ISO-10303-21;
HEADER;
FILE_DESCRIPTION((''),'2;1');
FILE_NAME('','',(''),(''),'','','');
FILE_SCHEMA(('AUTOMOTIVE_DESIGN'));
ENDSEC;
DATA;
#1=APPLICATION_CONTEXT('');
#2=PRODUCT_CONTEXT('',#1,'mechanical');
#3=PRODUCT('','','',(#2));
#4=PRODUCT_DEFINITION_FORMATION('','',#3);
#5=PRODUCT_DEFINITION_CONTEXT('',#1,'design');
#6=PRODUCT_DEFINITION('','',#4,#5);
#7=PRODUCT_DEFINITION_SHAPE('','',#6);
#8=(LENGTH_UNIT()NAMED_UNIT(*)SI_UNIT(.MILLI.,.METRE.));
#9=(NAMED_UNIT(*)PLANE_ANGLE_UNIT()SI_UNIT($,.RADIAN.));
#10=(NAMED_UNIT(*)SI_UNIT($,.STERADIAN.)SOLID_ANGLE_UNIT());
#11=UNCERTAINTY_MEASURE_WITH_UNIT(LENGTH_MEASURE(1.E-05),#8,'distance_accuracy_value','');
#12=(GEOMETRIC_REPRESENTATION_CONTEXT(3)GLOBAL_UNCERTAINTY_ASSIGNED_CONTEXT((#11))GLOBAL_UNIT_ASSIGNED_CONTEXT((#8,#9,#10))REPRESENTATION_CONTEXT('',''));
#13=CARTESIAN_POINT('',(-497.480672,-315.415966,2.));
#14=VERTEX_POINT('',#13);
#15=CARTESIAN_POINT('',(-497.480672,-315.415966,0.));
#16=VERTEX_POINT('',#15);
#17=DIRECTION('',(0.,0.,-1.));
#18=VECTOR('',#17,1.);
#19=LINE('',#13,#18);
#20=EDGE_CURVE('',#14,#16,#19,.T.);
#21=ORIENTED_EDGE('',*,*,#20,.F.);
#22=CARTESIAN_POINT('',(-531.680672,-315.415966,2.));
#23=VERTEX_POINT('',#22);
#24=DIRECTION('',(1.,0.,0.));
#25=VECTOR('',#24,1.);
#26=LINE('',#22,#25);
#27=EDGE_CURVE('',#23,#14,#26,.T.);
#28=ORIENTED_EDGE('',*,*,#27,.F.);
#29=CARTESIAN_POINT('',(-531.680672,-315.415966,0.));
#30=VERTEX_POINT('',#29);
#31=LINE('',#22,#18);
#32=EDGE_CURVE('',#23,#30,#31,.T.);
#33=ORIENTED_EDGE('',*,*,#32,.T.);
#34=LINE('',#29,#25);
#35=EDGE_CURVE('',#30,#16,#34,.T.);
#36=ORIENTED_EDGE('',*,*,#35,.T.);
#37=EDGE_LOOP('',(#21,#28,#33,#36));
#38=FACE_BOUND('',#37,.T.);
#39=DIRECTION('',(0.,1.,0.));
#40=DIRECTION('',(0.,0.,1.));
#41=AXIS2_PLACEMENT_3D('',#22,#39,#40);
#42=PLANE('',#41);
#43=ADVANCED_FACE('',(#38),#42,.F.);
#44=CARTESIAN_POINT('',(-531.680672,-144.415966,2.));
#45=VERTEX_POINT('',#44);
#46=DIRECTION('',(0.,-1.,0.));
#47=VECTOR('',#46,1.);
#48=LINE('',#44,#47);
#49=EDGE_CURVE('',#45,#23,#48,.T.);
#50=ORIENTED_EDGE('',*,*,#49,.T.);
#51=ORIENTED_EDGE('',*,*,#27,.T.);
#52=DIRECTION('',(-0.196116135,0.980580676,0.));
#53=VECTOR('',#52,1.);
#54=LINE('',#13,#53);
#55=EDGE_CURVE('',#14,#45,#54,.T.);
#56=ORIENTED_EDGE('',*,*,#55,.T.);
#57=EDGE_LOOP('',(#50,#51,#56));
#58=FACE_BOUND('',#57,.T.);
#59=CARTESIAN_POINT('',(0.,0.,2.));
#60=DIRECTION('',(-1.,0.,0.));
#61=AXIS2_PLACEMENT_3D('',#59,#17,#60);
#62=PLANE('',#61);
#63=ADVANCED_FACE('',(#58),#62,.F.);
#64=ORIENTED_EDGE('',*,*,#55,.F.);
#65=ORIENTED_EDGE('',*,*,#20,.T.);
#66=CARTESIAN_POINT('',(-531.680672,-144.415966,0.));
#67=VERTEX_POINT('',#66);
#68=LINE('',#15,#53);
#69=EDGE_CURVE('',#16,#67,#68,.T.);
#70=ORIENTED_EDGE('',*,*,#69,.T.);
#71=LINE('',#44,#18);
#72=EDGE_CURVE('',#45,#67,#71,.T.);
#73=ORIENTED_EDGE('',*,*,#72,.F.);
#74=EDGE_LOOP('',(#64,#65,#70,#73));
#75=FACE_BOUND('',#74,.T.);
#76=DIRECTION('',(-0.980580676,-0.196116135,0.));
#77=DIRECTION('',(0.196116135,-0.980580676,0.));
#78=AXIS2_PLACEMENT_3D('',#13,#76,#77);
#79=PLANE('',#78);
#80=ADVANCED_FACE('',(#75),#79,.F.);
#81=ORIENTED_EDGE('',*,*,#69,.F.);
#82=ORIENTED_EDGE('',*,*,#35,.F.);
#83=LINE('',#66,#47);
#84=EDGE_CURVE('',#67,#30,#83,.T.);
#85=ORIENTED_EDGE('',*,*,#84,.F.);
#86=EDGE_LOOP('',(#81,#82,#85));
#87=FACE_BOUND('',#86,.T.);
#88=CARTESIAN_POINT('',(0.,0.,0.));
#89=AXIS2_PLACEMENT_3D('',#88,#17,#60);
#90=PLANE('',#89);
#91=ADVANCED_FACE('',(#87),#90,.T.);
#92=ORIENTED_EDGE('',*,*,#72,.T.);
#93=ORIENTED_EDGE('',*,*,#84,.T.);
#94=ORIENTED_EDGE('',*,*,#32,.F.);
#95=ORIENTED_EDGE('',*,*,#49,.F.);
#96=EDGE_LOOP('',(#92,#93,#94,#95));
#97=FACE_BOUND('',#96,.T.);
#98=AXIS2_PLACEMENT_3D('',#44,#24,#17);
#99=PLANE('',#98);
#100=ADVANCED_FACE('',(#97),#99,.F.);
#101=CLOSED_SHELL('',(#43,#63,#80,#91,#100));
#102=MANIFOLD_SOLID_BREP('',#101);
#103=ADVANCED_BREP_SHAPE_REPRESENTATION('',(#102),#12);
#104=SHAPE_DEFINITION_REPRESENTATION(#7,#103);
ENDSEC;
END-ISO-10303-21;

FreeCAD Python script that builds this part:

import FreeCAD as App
import Part
import Sketcher
from FreeCAD import Vector
Q = App.Units.Quantity

doc = App.newDocument("Part")
body = doc.addObject("PartDesign::Body", "Body")

sketch1 = body.newObject("Sketcher::SketchObject", "Sketch")
sketch1.AttachmentSupport = (doc.getObject("XY_Plane"), [""])
sketch1.MapMode = "FlatFace"
sketch1.addGeometry([
    Part.LineSegment(Vector(-532, -144, 0), Vector(-532, -315, 0)),
    Part.LineSegment(Vector(-532, -315, 0), Vector(-497, -315, 0)),
    Part.LineSegment(Vector(-497, -315, 0), Vector(-532, -144, 0)),
], False)
sketch1.addConstraint([
    Sketcher.Constraint("Coincident", 0, 2, 1, 1),
    Sketcher.Constraint("Coincident", 1, 2, 2, 1),
    Sketcher.Constraint("Coincident", 2, 2, 0, 1),
    Sketcher.Constraint("Vertical", 0),
    Sketcher.Constraint("Horizontal", 1),
    Sketcher.Constraint("DistanceY", 0, 2, 0, 1, Q("171 mm")),
    Sketcher.Constraint("DistanceX", 1, 1, 1, 2, Q("34.2 mm")),
    Sketcher.Constraint("DistanceX", 0, 2, -1, 1, Q("531.680672 mm")),
    Sketcher.Constraint("DistanceY", 0, 2, -1, 1, Q("315.415966 mm")),
])
pad1 = body.newObject("PartDesign::Pad", "Pad")
pad1.Profile = sketch1
pad1.Length = 2

doc.recompute()
